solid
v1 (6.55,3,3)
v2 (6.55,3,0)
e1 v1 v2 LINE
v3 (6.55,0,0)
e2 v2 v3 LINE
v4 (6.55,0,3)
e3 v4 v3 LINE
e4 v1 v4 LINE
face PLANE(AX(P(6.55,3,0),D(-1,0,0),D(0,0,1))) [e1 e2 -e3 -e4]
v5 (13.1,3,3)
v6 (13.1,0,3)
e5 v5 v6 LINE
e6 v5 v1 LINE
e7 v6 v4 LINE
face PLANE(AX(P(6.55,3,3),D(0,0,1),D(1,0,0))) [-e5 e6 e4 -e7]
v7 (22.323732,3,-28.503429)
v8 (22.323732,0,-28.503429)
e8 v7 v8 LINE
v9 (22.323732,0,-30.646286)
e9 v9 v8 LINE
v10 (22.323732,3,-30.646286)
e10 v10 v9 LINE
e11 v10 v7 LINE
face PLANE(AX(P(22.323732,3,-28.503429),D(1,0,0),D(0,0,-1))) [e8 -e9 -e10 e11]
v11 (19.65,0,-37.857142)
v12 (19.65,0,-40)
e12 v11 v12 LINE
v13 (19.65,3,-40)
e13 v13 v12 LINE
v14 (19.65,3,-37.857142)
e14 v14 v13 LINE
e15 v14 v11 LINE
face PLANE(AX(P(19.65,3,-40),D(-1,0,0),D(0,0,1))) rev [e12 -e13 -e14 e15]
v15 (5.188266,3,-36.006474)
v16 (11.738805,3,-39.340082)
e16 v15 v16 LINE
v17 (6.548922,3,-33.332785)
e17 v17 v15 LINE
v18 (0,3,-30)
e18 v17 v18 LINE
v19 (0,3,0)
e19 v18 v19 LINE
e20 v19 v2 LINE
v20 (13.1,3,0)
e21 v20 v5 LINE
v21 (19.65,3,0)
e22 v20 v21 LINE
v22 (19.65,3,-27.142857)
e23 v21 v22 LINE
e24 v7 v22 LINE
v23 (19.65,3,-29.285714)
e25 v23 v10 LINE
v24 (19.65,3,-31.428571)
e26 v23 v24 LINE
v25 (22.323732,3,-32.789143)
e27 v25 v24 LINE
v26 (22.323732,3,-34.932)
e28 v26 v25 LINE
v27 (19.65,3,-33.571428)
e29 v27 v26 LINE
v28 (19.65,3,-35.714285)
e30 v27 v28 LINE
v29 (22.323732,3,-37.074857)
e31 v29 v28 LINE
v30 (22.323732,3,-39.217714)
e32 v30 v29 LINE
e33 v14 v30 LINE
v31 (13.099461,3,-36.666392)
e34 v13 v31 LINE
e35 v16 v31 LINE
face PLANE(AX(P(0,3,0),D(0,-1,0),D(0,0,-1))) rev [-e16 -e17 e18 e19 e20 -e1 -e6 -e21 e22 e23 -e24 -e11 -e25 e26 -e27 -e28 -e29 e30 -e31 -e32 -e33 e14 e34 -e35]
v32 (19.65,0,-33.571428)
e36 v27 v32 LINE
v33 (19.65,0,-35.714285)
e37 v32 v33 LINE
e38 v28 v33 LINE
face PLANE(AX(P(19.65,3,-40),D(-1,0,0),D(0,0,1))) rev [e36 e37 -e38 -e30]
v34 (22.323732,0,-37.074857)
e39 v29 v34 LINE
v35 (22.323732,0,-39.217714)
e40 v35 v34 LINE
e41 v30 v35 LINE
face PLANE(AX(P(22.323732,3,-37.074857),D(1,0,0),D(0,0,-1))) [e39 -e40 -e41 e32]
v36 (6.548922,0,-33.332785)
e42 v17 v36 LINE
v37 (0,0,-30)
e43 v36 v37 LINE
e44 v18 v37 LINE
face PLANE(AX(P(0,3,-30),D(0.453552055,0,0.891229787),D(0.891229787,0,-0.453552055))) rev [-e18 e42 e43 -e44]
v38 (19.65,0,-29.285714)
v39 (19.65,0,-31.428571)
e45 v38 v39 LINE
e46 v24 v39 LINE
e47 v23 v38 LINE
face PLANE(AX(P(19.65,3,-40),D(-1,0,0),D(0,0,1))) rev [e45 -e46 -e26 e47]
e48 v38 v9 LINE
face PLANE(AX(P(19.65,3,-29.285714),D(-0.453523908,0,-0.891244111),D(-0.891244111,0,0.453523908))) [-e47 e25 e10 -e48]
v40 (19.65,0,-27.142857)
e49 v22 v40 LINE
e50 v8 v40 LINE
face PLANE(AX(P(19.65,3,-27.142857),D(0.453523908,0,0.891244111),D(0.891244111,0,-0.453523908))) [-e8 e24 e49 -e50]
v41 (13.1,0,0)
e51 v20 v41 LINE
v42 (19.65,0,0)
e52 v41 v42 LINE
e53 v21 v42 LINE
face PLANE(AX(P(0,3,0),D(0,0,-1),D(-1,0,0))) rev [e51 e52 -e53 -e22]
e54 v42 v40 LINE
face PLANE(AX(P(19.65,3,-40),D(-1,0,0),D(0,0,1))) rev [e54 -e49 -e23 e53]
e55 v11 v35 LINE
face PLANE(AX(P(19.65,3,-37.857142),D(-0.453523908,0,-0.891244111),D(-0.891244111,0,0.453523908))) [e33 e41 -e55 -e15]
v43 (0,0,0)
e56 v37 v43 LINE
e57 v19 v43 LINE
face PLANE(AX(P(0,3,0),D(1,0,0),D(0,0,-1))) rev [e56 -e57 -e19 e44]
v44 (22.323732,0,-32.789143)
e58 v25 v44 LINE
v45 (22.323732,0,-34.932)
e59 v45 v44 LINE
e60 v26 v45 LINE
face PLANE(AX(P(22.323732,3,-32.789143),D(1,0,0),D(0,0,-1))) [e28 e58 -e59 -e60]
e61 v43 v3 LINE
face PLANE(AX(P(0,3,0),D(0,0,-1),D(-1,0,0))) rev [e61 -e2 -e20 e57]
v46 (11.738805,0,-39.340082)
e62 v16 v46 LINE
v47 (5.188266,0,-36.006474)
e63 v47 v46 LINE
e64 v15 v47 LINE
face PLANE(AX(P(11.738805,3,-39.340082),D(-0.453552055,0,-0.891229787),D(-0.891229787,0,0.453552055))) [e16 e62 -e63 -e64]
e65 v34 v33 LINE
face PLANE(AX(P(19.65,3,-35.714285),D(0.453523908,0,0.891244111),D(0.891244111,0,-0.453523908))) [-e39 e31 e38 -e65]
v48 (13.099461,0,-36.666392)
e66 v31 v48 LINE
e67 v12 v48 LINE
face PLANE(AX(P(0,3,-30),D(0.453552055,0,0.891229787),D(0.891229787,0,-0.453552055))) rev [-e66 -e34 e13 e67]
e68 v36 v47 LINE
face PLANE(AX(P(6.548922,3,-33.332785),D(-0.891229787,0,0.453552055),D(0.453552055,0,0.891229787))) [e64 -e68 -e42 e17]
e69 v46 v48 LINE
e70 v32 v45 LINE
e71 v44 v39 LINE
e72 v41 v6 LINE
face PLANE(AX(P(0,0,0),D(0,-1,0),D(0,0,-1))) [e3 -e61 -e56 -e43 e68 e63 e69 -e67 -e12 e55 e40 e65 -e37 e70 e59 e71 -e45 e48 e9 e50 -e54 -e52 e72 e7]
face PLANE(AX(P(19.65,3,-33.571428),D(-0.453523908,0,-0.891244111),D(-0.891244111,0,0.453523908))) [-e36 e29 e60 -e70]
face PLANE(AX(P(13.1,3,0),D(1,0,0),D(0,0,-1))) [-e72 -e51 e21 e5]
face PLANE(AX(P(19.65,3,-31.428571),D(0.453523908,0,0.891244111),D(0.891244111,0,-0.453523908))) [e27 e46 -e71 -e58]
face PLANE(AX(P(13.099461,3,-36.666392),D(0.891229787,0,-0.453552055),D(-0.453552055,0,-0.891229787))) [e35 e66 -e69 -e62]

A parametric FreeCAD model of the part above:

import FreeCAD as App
import Part
import Sketcher

V = App.Vector
Q = App.Units.Quantity


def add_polygon(sketch, points):
    """Adds a closed chain of lines whose ends are joined by coincident constraints."""
    first, n = sketch.GeometryCount, len(points)
    for a, b in zip(points, points[1:] + points[:1]):
        sketch.addGeometry(Part.LineSegment(App.Vector(*a, 0), App.Vector(*b, 0)), False)
    for i in range(n):
        sketch.addConstraint(Sketcher.Constraint("Coincident", first + i, 2, first + (i + 1) % n, 1))

doc = App.newDocument("Part")
params = doc.addObject("Spreadsheet::Sheet", "Params")
for row, (alias, value) in enumerate([
    ("sketch1_height", "30 mm"),
    ("sketch1_height2", "40 mm"),
    ("sketch1_width", "19.65 mm"),
    ("pad1_length", "3 mm"),
    ("sketch2_height", "3 mm"),
    ("sketch2_length", "3 mm"),
    ("sketch2_width", "6.55 mm"),
    ("sketch2_length2", "7.35 mm"),
    ("pad2_length", "3 mm"),
], start=1):
    params.set(f"A{row}", alias)
    params.set(f"B{row}", "=" + value)
    params.setAlias(f"B{row}", alias)

body = doc.addObject("PartDesign::Body", "Body")

# Sketch on XZ plane
sketch1 = body.newObject("Sketcher::SketchObject", "Sketch")
sketch1.AttachmentSupport = (doc.getObject("XZ_Plane"), [""])
sketch1.MapMode = "FlatFace"
add_polygon(sketch1, [(19.65, -40), (0, -30), (0, 0), (19.65, 0)])  # lines 0-3
sketch1.addConstraint(Sketcher.Constraint("Vertical", 1))
sketch1.addConstraint(Sketcher.Constraint("Horizontal", 2))
sketch1.addConstraint(Sketcher.Constraint("Vertical", 3))
sketch1.addConstraint(Sketcher.Constraint("Coincident", 1, 2, -1, 1))
sketch1.addConstraint(Sketcher.Constraint("DistanceY", 1, 1, 1, 2, 30.0))
sketch1.addConstraint(Sketcher.Constraint("DistanceY", 3, 2, 3, 1, 40.0))
sketch1.addConstraint(Sketcher.Constraint("DistanceX", 2, 1, 2, 2, 19.65))
sketch1.setExpression("Constraints[8]", "Params.sketch1_height")
sketch1.setExpression("Constraints[9]", "Params.sketch1_height2")
sketch1.setExpression("Constraints[10]", "Params.sketch1_width")
pad1 = body.newObject("PartDesign::Pad", "Pad")
pad1.Profile = sketch1
pad1.setExpression("Length", "Params.pad1_length")
pad1.Reversed = True

# Sketch on XZ plane
sketch2 = body.newObject("Sketcher::SketchObject", "Sketch001")
sketch2.AttachmentSupport = (doc.getObject("XZ_Plane"), [""])
sketch2.MapMode = "FlatFace"
add_polygon(sketch2, [(11.738805, -39.340082), (13.099461, -36.666392), (6.548922, -33.332785), (5.188266, -36.006474)])  # lines 0-3
add_polygon(sketch2, [(22.323732, -28.503429), (19.65, -27.142857), (19.65, -29.285714), (22.323732, -30.646286)])  # lines 4-7
add_polygon(sketch2, [(22.323732, -32.789143), (19.65, -31.428571), (19.65, -33.571428), (22.323732, -34.932)])  # lines 8-11
add_polygon(sketch2, [(22.323732, -37.074857), (19.65, -35.714285), (19.65, -37.857142), (22.323732, -39.217714)])  # lines 12-15
add_polygon(sketch2, [(6.55, 3), (6.55, 0), (13.1, 0), (13.1, 3)])  # lines 16-19
sketch2.addConstraint(Sketcher.Constraint("Vertical", 5))
sketch2.addConstraint(Sketcher.Constraint("Vertical", 7))
sketch2.addConstraint(Sketcher.Constraint("Vertical", 9))
sketch2.addConstraint(Sketcher.Constraint("Vertical", 11))
sketch2.addConstraint(Sketcher.Constraint("Vertical", 13))
sketch2.addConstraint(Sketcher.Constraint("Vertical", 15))
sketch2.addConstraint(Sketcher.Constraint("Vertical", 16))
sketch2.addConstraint(Sketcher.Constraint("Horizontal", 17))
sketch2.addConstraint(Sketcher.Constraint("Vertical", 18))
sketch2.addConstraint(Sketcher.Constraint("Horizontal", 19))
sketch2.addConstraint(Sketcher.Constraint("PointOnObject", 16, 2, -1))
sketch2.addConstraint(Sketcher.Constraint("Perpendicular", 0, 1))
sketch2.addConstraint(Sketcher.Constraint("Perpendicular", 1, 2))
sketch2.addConstraint(Sketcher.Constraint("Perpendicular", 2, 3))
sketch2.addConstraint(Sketcher.Constraint("Parallel", 4, 6))
sketch2.addConstraint(Sketcher.Constraint("Parallel", 6, 8))
sketch2.addConstraint(Sketcher.Constraint("Parallel", 8, 10))
sketch2.addConstraint(Sketcher.Constraint("Parallel", 10, 12))
sketch2.addConstraint(Sketcher.Constraint("Parallel", 12, 14))
sketch2.addConstraint(Sketcher.Constraint("Vertical", 5, 2, 8, 2))
sketch2.addConstraint(Sketcher.Constraint("Vertical", 7, 2, 10, 2))
sketch2.addConstraint(Sketcher.Constraint("Vertical", 9, 2, 12, 2))
sketch2.addConstraint(Sketcher.Constraint("Vertical", 11, 2, 14, 2))
sketch2.addConstraint(Sketcher.Constraint("Equal", 7, 9))
sketch2.addConstraint(Sketcher.Constraint("Equal", 11, 13))
sketch2.addConstraint(Sketcher.Constraint("Equal", 2, 4))
sketch2.addConstraint(Sketcher.Constraint("DistanceY", 16, 2, 16, 1, 3.0))
sketch2.addConstraint(Sketcher.Constraint("Distance", 0, 3.0))
sketch2.addConstraint(Sketcher.Constraint("DistanceX", 17, 1, 17, 2, 6.55))
sketch2.addConstraint(Sketcher.Constraint("DistanceX", -1, 1, 17, 2, 13.1))
sketch2.addConstraint(Sketcher.Constraint("Angle", 4, Q("153.03 deg")))
sketch2.addConstraint(Sketcher.Constraint("DistanceX", 16, 2, 4, 2, 13.1))
sketch2.addConstraint(Sketcher.Constraint("Distance", 1, 7.35))
sketch2.addConstraint(Sketcher.Constraint("DistanceY", 10, 2, -1, 1, 34.932))
sketch2.addConstraint(Sketcher.Constraint("DistanceY", 9, 2, 7, 2, 5.067999))
sketch2.addConstraint(Sketcher.Constraint("DistanceY", 12, 2, 6, 2, 5.067999))
sketch2.addConstraint(Sketcher.Constraint("DistanceY", 13, 2, 11, 2, 5.067999))
sketch2.addConstraint(Sketcher.Constraint("DistanceY", 1, 2, 6, 2, 2.686499))
sketch2.addConstraint(Sketcher.Constraint("DistanceX", -1, 1, 0, 2, 13.099461))
sketch2.addConstraint(Sketcher.Constraint("DistanceY", 3, 2, -1, 1, 39.340082))
sketch2.setExpression("Constraints[46]", "Params.sketch2_height")
sketch2.setExpression("Constraints[47]", "Params.sketch2_length")
sketch2.setExpression("Constraints[48]", "Params.sketch2_width")
sketch2.setExpression("Constraints[52]", "Params.sketch2_length2")
pad2 = body.newObject("PartDesign::Pad", "Pad001")
pad2.Profile = sketch2
pad2.setExpression("Length", "Params.pad2_length")
pad2.Reversed = True

doc.recompute()
